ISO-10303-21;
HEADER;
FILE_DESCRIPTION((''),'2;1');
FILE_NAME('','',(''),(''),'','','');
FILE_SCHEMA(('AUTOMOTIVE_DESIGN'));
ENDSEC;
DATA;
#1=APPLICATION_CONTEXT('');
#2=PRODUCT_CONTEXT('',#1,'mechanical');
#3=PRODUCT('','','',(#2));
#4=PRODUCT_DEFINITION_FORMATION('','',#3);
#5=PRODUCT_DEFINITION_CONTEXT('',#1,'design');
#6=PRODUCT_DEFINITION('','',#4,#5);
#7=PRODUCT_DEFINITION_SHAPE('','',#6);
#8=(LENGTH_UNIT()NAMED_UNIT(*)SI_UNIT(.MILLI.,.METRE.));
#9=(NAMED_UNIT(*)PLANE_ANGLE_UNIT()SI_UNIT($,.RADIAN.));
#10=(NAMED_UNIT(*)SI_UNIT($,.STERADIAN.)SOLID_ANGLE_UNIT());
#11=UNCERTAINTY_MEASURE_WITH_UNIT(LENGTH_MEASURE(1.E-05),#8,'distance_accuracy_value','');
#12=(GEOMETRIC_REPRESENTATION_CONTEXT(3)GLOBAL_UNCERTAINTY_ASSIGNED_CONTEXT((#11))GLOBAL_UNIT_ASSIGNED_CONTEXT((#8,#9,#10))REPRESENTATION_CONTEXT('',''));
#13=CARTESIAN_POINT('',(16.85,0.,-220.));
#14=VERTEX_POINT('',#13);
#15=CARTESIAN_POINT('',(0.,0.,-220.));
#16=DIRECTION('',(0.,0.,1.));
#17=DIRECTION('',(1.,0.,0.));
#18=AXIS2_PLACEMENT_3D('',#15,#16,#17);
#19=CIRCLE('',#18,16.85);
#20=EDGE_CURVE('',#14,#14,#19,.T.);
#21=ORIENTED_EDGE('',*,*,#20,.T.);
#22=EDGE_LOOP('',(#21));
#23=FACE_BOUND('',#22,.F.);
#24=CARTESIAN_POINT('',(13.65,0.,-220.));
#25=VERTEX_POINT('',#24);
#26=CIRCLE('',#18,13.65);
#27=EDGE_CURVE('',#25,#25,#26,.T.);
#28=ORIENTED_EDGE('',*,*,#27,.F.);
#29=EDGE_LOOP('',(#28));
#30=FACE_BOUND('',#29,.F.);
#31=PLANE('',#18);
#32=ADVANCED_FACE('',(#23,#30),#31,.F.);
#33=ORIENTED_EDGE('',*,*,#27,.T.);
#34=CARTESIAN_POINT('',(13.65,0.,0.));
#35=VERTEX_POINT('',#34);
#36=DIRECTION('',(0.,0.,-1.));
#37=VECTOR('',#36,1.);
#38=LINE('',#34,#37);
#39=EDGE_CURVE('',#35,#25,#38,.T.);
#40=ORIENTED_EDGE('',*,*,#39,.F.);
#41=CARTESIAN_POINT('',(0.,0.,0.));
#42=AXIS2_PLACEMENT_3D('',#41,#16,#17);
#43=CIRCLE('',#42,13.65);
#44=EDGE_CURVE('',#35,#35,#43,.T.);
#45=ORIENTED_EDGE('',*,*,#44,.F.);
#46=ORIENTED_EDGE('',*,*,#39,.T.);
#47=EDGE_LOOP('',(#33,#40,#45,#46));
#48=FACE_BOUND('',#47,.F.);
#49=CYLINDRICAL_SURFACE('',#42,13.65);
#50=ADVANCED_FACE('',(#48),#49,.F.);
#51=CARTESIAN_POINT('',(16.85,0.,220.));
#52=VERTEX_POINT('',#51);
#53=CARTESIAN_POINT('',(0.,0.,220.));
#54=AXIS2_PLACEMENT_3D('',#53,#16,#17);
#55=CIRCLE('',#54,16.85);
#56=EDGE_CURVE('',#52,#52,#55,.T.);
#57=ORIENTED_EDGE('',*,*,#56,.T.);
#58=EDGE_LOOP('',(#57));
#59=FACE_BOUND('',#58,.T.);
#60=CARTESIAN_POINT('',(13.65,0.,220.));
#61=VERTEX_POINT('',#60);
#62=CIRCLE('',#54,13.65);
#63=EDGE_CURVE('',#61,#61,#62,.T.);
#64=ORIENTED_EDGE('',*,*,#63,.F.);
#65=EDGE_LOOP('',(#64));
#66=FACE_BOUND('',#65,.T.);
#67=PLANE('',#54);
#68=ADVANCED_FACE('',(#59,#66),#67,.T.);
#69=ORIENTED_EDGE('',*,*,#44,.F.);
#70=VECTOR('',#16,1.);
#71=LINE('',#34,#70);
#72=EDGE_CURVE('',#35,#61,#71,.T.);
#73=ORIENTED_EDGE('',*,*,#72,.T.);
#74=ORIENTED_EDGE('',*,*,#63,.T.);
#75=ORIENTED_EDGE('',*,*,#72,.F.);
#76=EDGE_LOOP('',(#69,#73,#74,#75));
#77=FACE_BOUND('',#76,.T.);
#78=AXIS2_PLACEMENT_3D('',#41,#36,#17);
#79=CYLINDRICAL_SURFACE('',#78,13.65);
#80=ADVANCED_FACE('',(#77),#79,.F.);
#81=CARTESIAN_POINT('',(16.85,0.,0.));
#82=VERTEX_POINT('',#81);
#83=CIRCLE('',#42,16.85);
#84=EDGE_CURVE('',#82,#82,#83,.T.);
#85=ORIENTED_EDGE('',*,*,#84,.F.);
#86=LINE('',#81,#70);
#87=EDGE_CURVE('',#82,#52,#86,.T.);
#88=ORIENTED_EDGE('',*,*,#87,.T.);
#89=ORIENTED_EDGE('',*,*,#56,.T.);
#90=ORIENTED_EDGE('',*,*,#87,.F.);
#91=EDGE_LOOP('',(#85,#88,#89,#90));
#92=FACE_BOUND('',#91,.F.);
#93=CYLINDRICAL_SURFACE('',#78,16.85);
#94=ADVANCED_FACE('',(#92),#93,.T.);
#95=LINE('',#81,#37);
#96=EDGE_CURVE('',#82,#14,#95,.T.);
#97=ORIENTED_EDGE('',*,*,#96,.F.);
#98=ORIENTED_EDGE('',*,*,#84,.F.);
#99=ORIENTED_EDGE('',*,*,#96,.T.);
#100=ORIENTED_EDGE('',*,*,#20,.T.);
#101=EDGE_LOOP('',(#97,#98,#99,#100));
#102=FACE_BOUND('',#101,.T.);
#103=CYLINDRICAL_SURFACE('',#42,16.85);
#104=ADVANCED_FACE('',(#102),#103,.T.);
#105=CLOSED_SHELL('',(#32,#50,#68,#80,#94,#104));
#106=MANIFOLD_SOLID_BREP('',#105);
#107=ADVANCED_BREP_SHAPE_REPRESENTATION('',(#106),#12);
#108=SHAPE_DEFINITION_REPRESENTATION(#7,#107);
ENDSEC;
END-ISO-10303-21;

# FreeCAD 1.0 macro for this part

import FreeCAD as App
import Part
import Sketcher

V = App.Vector

doc = App.newDocument("Part")
body = doc.addObject("PartDesign::Body", "Body")

# Sketch on XY plane
sketch1 = doc.addObject("Sketcher::SketchObject", "Sketch")
body.addObject(sketch1)
sketch1.AttachmentSupport = (doc.XY_Plane, [""])
sketch1.MapMode = "FlatFace"
sketch1.addGeometry([
    Part.Circle(V(0, 0, 0), V(0, 0, 1), 16.85),
    Part.Circle(V(0, 0, 0), V(0, 0, 1), 13.65),
], False)
sketch1.addConstraint([
    Sketcher.Constraint("Coincident", 0, 3, -1, 1),
    Sketcher.Constraint("Coincident", 1, 3, -1, 1),
    Sketcher.Constraint("Diameter", 0, 33.7),
    Sketcher.Constraint("Diameter", 1, 27.3),
])
pad1 = doc.addObject("PartDesign::Pad", "Pad")
body.addObject(pad1)
pad1.Profile = sketch1
pad1.Length = 440
pad1.Midplane = True

doc.recompute()
